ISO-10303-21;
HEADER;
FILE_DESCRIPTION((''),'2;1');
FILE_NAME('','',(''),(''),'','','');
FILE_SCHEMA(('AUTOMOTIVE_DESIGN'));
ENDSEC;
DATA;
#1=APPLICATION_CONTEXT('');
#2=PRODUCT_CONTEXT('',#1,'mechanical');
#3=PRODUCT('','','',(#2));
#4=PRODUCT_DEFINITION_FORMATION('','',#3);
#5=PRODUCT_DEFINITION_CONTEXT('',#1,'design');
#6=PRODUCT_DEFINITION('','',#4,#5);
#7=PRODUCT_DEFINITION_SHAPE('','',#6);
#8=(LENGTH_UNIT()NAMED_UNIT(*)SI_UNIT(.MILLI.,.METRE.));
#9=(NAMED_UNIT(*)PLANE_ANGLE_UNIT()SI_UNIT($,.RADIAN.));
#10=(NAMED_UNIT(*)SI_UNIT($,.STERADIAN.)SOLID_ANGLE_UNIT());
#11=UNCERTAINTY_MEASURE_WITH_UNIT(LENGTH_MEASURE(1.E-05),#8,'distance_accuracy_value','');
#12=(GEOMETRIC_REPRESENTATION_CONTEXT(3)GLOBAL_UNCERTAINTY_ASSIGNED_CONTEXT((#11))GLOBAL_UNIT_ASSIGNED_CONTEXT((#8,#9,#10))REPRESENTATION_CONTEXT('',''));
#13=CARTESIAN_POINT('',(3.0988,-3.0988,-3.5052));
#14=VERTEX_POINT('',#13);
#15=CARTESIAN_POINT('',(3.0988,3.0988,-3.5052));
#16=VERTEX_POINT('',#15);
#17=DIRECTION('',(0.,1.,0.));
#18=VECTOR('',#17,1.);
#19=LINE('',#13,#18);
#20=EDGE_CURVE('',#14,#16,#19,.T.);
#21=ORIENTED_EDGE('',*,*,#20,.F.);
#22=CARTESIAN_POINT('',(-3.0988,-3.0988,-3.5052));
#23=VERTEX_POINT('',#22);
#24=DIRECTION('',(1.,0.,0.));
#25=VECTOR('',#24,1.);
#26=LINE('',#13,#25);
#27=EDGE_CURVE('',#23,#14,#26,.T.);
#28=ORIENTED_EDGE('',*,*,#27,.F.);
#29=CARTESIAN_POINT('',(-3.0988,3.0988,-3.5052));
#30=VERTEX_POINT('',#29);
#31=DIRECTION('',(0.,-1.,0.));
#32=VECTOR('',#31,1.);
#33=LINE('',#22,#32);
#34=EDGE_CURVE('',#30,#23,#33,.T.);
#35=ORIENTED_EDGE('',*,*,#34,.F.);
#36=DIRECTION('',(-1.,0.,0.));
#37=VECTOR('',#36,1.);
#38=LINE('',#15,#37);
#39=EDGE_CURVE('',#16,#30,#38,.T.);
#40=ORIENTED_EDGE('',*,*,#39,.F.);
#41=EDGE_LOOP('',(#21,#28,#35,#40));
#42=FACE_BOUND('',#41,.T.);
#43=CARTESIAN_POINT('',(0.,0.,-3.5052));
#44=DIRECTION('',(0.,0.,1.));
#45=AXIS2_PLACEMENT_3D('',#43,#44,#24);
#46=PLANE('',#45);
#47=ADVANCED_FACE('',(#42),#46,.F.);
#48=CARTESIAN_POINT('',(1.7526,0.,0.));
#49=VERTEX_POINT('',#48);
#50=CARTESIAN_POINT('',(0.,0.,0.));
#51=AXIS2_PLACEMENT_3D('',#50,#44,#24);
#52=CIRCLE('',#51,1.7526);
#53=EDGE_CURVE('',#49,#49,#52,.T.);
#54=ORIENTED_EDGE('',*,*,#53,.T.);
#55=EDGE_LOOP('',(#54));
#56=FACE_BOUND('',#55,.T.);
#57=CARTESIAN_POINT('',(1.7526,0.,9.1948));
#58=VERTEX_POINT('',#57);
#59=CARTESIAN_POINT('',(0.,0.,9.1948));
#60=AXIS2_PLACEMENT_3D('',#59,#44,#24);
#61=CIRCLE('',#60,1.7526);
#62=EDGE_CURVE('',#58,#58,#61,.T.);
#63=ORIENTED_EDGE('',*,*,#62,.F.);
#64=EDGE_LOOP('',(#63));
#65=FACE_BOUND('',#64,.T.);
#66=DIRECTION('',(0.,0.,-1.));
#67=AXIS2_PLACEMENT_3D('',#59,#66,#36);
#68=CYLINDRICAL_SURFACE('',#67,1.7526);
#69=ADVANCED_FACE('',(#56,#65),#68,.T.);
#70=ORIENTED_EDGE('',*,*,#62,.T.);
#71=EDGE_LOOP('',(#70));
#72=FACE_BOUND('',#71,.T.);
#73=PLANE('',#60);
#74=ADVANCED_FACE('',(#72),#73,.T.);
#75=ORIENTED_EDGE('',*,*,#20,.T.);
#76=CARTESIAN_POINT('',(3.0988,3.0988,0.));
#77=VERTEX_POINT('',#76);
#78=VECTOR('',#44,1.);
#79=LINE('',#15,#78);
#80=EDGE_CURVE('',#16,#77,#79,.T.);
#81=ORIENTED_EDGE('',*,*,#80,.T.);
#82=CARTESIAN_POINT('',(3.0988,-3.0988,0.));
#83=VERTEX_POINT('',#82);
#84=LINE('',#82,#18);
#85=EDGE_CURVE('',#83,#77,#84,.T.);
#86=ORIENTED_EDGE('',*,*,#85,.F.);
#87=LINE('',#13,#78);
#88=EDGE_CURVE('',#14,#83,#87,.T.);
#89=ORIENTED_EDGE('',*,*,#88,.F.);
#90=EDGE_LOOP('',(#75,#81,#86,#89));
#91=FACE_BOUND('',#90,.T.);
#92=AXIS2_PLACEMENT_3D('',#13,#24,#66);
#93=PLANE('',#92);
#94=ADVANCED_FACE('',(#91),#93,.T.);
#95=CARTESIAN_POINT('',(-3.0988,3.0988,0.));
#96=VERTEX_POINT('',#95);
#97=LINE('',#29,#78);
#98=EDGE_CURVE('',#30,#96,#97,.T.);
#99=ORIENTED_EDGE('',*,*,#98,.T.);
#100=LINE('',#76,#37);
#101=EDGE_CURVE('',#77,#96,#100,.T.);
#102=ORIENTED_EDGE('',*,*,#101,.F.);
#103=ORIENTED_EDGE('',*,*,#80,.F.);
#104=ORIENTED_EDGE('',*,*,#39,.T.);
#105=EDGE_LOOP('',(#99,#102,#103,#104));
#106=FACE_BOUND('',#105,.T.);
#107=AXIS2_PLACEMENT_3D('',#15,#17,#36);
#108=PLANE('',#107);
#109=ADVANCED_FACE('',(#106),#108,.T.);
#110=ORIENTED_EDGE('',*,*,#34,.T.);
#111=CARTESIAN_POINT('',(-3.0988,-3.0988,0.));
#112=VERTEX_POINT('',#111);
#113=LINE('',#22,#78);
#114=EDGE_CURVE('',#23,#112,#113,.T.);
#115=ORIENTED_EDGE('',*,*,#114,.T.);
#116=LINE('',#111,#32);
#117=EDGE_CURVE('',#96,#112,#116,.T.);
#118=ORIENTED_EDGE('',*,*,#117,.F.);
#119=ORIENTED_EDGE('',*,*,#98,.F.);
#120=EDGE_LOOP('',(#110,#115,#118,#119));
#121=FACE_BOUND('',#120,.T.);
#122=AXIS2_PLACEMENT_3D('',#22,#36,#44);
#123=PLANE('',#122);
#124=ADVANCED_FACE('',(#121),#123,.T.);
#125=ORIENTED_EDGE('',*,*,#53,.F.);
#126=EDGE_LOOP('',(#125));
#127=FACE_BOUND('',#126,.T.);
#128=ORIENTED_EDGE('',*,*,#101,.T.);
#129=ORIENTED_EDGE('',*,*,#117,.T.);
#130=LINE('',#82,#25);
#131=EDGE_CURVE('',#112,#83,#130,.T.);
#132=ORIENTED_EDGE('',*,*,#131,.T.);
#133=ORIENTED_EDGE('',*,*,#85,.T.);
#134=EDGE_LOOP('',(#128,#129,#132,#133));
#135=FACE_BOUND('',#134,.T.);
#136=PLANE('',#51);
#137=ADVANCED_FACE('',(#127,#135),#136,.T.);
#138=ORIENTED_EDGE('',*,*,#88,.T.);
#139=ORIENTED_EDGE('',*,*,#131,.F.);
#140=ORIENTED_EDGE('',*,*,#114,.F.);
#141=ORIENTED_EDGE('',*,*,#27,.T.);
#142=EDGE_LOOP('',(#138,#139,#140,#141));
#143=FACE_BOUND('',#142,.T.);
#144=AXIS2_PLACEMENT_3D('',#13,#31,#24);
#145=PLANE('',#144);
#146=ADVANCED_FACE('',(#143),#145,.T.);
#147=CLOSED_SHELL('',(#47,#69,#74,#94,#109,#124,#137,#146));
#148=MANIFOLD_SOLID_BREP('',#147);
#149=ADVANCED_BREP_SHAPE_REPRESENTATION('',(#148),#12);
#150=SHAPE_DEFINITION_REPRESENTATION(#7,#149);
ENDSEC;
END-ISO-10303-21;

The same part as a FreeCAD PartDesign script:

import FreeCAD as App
import Part
import Sketcher
from FreeCAD import Vector
Q = App.Units.Quantity


def add_polygon(sketch, points):
    """Adds a closed chain of lines whose ends are joined by coincident constraints."""
    first, n = sketch.GeometryCount, len(points)
    for a, b in zip(points, points[1:] + points[:1]):
        sketch.addGeometry(Part.LineSegment(App.Vector(*a, 0), App.Vector(*b, 0)), False)
    for i in range(n):
        sketch.addConstraint(Sketcher.Constraint("Coincident", first + i, 2, first + (i + 1) % n, 1))

doc = App.newDocument("Part")
body = doc.addObject("PartDesign::Body", "Body")

# Sketch on XY plane
sketch1 = body.newObject("Sketcher::SketchObject", "Sketch")
sketch1.AttachmentSupport = (doc.getObject("XY_Plane"), [""])
sketch1.MapMode = "FlatFace"
add_polygon(sketch1, [(-3.0988, 3.0988), (-3.0988, -3.0988), (3.0988, -3.0988), (3.0988, 3.0988)])  # lines 0-3
sketch1.addConstraint(Sketcher.Constraint("Vertical", 0))
sketch1.addConstraint(Sketcher.Constraint("Horizontal", 1))
sketch1.addConstraint(Sketcher.Constraint("Vertical", 2))
sketch1.addConstraint(Sketcher.Constraint("Horizontal", 3))
sketch1.addConstraint(Sketcher.Constraint("Symmetric", 0, 2, 2, 2, -1, 1))
sketch1.addConstraint(Sketcher.Constraint("Equal", 3, 0))
sketch1.addConstraint(Sketcher.Constraint("DistanceX", 1, 1, 1, 2, Q("0.244 in")))
pad1 = body.newObject("PartDesign::Pad", "Pad")
pad1.Profile = sketch1
pad1.Length = Q("0.138 in")
pad1.Reversed = True

# Sketch on XY plane
sketch2 = body.newObject("Sketcher::SketchObject", "Sketch001")
sketch2.AttachmentSupport = (doc.getObject("XY_Plane"), [""])
sketch2.MapMode = "FlatFace"
sketch2.addGeometry(Part.Circle(Vector(0, 0, 0), Vector(0, 0, 1), 1.7526), False)
sketch2.addConstraint(Sketcher.Constraint("Coincident", 0, 3, -1, 1))
sketch2.addConstraint(Sketcher.Constraint("Diameter", 0, Q("0.138 in")))
pad2 = body.newObject("PartDesign::Pad", "Pad001")
pad2.Profile = sketch2
pad2.Length = Q("0.362 in")

doc.recompute()
